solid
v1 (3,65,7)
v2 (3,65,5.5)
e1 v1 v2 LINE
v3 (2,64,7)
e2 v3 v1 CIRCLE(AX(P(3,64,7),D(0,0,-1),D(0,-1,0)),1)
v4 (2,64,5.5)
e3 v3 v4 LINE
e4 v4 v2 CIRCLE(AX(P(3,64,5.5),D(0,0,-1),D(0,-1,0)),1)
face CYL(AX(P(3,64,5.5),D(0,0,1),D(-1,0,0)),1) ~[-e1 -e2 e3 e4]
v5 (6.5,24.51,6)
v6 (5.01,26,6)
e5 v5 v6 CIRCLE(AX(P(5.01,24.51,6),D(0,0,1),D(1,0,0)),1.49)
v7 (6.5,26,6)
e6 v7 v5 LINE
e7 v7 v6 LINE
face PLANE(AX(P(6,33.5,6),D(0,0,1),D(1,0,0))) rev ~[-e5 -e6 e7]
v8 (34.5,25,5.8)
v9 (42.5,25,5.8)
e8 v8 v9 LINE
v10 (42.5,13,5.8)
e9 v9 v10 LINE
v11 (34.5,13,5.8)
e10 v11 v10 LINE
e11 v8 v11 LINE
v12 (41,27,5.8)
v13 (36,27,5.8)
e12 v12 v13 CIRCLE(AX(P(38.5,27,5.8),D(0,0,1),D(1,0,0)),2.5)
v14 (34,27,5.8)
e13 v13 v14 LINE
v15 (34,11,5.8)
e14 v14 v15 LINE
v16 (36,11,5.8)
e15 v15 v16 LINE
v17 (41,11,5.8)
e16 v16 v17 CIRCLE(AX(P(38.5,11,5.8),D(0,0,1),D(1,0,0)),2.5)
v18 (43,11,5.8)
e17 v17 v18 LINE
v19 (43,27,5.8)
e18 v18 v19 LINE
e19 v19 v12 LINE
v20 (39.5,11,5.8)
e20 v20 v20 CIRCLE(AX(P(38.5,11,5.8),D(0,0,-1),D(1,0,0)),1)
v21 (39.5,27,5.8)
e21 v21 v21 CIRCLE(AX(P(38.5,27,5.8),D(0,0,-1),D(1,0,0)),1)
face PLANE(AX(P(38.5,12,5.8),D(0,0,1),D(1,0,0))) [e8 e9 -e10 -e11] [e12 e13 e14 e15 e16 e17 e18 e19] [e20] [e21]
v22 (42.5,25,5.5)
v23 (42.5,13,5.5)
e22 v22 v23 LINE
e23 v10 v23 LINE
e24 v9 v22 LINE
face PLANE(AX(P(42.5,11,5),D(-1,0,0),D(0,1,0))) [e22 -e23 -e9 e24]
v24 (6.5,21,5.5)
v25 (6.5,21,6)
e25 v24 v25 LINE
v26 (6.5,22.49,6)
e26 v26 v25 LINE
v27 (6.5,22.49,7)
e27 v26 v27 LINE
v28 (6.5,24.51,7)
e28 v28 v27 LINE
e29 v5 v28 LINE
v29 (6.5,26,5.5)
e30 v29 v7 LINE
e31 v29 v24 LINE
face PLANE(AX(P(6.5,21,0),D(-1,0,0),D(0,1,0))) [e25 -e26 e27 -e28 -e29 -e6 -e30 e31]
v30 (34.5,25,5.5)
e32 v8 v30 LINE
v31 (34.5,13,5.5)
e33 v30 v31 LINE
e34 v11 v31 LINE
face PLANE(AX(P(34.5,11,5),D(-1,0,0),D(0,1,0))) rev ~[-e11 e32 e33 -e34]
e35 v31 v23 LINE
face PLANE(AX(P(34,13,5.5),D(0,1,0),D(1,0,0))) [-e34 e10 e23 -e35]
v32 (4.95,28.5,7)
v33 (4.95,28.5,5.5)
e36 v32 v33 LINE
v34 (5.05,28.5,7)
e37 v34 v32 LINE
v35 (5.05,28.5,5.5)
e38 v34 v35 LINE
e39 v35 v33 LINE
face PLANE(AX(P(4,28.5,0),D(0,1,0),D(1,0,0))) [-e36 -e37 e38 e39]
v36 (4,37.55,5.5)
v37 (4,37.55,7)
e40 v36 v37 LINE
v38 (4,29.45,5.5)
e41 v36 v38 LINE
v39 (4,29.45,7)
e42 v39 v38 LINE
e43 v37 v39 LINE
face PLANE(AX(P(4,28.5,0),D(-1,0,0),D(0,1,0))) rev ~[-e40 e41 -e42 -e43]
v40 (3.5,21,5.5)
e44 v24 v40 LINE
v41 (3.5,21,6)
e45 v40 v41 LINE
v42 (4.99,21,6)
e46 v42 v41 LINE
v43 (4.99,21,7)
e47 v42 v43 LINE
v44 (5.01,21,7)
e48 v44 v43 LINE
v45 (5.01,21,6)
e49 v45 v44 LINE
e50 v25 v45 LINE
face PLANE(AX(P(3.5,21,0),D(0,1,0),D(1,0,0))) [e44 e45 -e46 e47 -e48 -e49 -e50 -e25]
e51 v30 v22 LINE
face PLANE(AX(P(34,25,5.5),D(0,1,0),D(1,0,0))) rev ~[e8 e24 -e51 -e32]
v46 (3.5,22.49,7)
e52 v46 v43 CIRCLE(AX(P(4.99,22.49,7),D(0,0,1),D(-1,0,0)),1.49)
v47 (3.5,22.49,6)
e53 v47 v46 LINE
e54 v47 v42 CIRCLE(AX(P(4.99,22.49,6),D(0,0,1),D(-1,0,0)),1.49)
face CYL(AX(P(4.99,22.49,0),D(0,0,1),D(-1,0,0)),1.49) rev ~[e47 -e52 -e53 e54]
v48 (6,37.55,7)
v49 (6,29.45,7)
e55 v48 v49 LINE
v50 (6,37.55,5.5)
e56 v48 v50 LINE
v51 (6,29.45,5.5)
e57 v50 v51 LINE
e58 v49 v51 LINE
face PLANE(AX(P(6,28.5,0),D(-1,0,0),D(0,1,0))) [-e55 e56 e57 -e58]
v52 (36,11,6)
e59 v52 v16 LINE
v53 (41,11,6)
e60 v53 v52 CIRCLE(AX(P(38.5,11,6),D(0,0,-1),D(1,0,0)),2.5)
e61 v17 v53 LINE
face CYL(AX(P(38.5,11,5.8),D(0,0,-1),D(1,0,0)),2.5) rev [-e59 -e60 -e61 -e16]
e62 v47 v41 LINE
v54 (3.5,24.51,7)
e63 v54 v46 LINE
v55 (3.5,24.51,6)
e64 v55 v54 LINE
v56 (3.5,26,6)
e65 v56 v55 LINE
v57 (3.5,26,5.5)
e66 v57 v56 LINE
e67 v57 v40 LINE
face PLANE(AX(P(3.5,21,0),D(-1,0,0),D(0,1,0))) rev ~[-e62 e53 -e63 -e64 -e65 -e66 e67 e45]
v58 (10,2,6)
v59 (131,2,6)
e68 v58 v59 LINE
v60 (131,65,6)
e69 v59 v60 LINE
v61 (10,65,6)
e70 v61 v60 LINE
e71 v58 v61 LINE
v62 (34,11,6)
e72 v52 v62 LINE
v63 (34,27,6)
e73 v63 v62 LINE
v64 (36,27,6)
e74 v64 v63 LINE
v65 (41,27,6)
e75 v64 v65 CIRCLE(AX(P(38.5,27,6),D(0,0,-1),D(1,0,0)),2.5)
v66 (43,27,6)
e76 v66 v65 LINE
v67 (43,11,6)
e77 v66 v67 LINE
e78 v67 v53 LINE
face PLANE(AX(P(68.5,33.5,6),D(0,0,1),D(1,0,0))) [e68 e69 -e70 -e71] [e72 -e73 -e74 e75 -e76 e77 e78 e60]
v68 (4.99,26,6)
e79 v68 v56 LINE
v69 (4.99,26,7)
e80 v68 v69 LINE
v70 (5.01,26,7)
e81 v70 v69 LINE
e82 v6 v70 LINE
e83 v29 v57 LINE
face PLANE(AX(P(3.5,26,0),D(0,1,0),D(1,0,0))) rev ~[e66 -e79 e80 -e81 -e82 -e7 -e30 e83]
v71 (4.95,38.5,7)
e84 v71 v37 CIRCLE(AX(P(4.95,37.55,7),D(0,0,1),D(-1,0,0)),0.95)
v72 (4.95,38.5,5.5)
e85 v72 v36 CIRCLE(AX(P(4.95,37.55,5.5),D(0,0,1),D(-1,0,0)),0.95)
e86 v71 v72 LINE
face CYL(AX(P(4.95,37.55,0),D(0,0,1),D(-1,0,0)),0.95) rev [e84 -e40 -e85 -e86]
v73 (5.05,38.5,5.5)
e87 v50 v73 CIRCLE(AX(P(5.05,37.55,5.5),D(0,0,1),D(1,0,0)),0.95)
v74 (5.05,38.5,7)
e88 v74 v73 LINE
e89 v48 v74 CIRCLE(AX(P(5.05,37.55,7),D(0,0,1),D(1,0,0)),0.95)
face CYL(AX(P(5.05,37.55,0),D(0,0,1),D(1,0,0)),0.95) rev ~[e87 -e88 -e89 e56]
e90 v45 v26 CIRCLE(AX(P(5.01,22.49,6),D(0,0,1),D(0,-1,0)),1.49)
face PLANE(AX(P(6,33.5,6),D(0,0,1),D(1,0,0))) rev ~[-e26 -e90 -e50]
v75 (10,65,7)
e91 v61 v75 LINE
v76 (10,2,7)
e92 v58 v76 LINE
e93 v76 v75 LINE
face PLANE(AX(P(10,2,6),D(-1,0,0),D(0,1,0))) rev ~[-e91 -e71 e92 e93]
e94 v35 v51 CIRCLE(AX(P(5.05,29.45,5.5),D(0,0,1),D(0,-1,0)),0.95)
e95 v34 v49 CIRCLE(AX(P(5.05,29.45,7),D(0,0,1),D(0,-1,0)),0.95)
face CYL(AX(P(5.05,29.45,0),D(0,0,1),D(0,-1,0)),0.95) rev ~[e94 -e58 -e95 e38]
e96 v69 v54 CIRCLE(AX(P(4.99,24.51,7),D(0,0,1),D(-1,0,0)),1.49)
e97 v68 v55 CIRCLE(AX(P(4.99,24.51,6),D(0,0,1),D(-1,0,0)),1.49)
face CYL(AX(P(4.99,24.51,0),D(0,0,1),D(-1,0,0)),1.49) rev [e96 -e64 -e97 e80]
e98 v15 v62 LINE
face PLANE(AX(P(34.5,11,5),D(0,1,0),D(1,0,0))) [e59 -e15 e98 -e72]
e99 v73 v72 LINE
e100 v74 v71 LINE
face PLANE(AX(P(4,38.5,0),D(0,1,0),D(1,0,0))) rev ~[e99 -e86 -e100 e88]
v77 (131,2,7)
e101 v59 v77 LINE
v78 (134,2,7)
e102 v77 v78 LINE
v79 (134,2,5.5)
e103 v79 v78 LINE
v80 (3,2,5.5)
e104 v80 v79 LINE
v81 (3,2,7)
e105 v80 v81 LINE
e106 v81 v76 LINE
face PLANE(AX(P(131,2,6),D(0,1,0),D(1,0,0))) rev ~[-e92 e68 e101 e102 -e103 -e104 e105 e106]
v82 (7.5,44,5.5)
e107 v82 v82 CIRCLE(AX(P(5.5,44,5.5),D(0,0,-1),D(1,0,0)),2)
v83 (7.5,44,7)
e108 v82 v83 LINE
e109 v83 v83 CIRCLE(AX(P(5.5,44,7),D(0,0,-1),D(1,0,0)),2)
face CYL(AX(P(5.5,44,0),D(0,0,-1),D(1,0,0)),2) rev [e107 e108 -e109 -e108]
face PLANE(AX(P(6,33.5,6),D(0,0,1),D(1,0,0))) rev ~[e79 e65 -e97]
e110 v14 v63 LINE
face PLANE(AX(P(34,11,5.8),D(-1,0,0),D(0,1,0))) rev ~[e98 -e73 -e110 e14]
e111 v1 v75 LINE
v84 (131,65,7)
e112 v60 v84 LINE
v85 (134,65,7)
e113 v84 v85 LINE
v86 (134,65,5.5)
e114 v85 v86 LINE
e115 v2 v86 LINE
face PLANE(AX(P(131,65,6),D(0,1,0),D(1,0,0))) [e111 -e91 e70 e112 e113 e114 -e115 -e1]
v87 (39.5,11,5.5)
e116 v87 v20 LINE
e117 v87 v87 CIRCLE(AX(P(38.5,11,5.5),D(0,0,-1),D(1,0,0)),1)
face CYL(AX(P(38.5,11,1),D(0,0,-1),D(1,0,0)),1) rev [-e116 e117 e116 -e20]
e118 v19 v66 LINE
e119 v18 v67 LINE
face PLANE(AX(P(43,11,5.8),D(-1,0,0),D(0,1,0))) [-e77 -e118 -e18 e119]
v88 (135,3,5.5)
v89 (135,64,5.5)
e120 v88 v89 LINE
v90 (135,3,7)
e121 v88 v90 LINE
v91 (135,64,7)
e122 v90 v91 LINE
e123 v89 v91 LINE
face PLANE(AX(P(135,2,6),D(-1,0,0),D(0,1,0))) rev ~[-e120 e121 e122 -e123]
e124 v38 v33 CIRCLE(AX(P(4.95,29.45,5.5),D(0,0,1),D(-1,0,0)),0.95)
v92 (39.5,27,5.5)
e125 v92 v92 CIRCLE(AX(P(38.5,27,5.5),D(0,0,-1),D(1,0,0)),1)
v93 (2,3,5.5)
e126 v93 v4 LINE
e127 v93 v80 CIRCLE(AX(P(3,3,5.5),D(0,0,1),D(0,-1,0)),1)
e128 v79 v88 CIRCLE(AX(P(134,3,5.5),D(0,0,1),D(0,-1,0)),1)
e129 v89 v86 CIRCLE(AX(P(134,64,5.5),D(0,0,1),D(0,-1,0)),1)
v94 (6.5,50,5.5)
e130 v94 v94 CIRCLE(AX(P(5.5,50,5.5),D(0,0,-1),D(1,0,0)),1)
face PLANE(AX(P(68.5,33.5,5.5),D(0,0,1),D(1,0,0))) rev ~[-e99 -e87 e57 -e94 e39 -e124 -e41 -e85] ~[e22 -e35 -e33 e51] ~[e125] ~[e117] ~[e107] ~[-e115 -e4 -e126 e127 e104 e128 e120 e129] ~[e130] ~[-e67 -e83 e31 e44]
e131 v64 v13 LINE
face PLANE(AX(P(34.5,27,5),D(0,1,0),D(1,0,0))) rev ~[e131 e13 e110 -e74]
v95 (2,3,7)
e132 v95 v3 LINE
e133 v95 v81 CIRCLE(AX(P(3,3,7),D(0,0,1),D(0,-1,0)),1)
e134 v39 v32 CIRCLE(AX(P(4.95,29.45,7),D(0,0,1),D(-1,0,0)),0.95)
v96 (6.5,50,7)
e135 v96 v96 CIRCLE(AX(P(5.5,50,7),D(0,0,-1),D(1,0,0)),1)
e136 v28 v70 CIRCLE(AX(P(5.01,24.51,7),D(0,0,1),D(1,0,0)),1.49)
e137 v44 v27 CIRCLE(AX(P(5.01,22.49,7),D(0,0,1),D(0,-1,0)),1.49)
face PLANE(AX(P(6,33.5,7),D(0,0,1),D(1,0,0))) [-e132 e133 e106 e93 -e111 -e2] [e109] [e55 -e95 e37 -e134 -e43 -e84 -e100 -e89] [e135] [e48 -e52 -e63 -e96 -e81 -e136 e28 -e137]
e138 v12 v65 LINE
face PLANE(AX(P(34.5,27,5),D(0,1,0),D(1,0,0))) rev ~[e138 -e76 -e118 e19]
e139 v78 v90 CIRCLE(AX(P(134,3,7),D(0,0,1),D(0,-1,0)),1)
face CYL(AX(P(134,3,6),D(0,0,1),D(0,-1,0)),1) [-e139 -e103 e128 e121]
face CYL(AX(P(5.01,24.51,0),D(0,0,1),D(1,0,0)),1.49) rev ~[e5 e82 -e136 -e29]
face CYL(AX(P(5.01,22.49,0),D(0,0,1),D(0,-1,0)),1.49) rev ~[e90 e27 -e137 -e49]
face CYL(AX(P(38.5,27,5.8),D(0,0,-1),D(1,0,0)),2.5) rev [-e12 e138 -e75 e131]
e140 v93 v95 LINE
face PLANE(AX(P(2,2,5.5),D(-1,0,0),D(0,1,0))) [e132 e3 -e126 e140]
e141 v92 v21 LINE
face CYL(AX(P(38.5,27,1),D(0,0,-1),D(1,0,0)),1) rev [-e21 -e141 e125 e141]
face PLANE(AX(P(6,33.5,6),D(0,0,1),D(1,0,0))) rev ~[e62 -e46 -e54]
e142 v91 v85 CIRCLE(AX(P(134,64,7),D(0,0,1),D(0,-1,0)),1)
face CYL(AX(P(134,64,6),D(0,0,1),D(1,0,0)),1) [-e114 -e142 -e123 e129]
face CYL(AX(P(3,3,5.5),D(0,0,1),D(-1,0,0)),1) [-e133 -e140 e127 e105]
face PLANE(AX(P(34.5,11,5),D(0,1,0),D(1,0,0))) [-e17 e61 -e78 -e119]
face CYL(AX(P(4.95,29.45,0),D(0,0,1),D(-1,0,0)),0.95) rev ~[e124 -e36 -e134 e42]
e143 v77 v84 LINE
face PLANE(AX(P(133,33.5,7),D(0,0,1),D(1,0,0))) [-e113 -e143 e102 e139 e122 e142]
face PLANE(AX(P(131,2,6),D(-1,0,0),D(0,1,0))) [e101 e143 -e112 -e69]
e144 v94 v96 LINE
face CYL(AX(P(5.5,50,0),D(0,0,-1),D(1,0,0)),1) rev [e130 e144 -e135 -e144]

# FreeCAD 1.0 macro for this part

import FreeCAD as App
import Part
import Sketcher
from FreeCAD import Vector
Q = App.Units.Quantity


def edges_at(feature, points):
    """Names of the edges that pass closest to the given points."""
    edges = feature.Shape.Edges
    near = lambda p: min(range(len(edges)), key=lambda i: edges[i].distToShape(Part.Vertex(*p))[0])
    return sorted({f"Edge{near(p) + 1}" for p in points})


def add_polygon(sketch, points):
    """Adds a closed chain of lines whose ends are joined by coincident constraints."""
    first, n = sketch.GeometryCount, len(points)
    for a, b in zip(points, points[1:] + points[:1]):
        sketch.addGeometry(Part.LineSegment(App.Vector(*a, 0), App.Vector(*b, 0)), False)
    for i in range(n):
        sketch.addConstraint(Sketcher.Constraint("Coincident", first + i, 2, first + (i + 1) % n, 1))

doc = App.newDocument("Part")
body = doc.addObject("PartDesign::Body", "Body")

# Sketch on XY plane
sketch1 = body.newObject("Sketcher::SketchObject", "Sketch")
sketch1.AttachmentSupport = (doc.getObject("XY_Plane"), [""])
sketch1.MapMode = "FlatFace"
add_polygon(sketch1, [(4, 38.5), (4, 28.5), (6, 28.5), (6, 38.5)])  # lines 0-3
sketch1.addConstraint([
    Sketcher.Constraint("Vertical", 0),
    Sketcher.Constraint("Horizontal", 1),
    Sketcher.Constraint("Vertical", 2),
    Sketcher.Constraint("Horizontal", 3),
    Sketcher.Constraint("DistanceX", 1, 1, 1, 2, Q("2 mm")),
    Sketcher.Constraint("DistanceY", 0, 2, 0, 1, Q("10 mm")),
    Sketcher.Constraint("DistanceX", -1, 1, 0, 2, Q("4 mm")),
    Sketcher.Constraint("DistanceY", -1, 1, 0, 2, Q("28.5 mm")),
])
pad1 = body.newObject("PartDesign::Pad", "Pad")
pad1.Profile = sketch1
pad1.Length = 10
doc.recompute()

fillet = body.newObject("PartDesign::Fillet", "Fillet")
fillet.Base = (pad1, edges_at(pad1, [
    (4, 28.5, 5),
    (4, 38.5, 5),
    (6, 28.5, 5),
    (6, 38.5, 5),
]))
fillet.Radius = 0.95
body2 = doc.addObject("PartDesign::Body", "Body001")

# Sketch on XY plane
sketch2 = body2.newObject("Sketcher::SketchObject", "Sketch001")
sketch2.AttachmentSupport = (doc.getObject("XY_Plane001"), [""])
sketch2.MapMode = "FlatFace"
add_polygon(sketch2, [(3.5, 26), (3.5, 21), (6.5, 21), (6.5, 26)])  # lines 0-3
sketch2.addConstraint([
    Sketcher.Constraint("Vertical", 0),
    Sketcher.Constraint("Horizontal", 1),
    Sketcher.Constraint("Vertical", 2),
    Sketcher.Constraint("Horizontal", 3),
    Sketcher.Constraint("DistanceX", 1, 1, 1, 2, Q("3 mm")),
    Sketcher.Constraint("DistanceY", 0, 2, 0, 1, Q("5 mm")),
    Sketcher.Constraint("DistanceY", -1, 1, 0, 2, Q("21 mm")),
    Sketcher.Constraint("DistanceX", -1, 1, 0, 2, Q("3.5 mm")),
])
pad2 = body2.newObject("PartDesign::Pad", "Pad001")
pad2.Profile = sketch2
pad2.Length = 10
body3 = doc.addObject("PartDesign::Body", "Body002")

# Sketch on XY plane
sketch3 = body3.newObject("Sketcher::SketchObject", "Sketch002")
sketch3.AttachmentSupport = (doc.getObject("XY_Plane002"), [""])
sketch3.MapMode = "FlatFace"
sketch3.addGeometry(Part.Circle(Vector(5.5, 44, 0), Vector(0, 0, 1), 2), False)
sketch3.addConstraint([
    Sketcher.Constraint("Diameter", 0, Q("4 mm")),
    Sketcher.Constraint("DistanceY", -1, 1, 0, 3, Q("44 mm")),
    Sketcher.Constraint("DistanceX", -1, 1, 0, 3, Q("5.5 mm")),
])
pad3 = body3.newObject("PartDesign::Pad", "Pad002")
pad3.Profile = sketch3
pad3.Length = 10
body4 = doc.addObject("PartDesign::Body", "Body003")

# Sketch on XY plane
sketch4 = body4.newObject("Sketcher::SketchObject", "Sketch003")
sketch4.AttachmentSupport = (doc.getObject("XY_Plane003"), [""])
sketch4.MapMode = "FlatFace"
sketch4.addGeometry(Part.Circle(Vector(5.5, 50, 0), Vector(0, 0, 1), 1), False)
sketch4.addConstraint([
    Sketcher.Constraint("Diameter", 0, Q("2 mm")),
    Sketcher.Constraint("DistanceY", -1, 1, 0, 3, Q("50 mm")),
    Sketcher.Constraint("DistanceX", -1, 1, 0, 3, Q("5.5 mm")),
])
pad4 = body4.newObject("PartDesign::Pad", "Pad003")
pad4.Profile = sketch4
pad4.Length = 10
body5 = doc.addObject("PartDesign::Body", "Body004")

# Sketch on XY plane
sketch5 = body5.newObject("Sketcher::SketchObject", "Sketch004")
sketch5.AttachmentSupport = (doc.getObject("XY_Plane004"), [""])
sketch5.MapMode = "FlatFace"
sketch5.AttachmentOffset = App.Placement(Vector(0, 0, 1), App.Rotation())
sketch5.addGeometry(Part.Circle(Vector(38.5, 11, 0), Vector(0, 0, 1), 1), False)
sketch5.addConstraint([
    Sketcher.Constraint("Diameter", 0, Q("2 mm")),
    Sketcher.Constraint("DistanceY", -1, 1, 0, 3, Q("11 mm")),
    Sketcher.Constraint("DistanceX", -1, 1, 0, 3, Q("38.5 mm")),
])
pad5 = body5.newObject("PartDesign::Pad", "Pad004")
pad5.Profile = sketch5
pad5.Length = 10
body6 = doc.addObject("PartDesign::Body", "Body005")

# Sketch on XY plane
sketch6 = body6.newObject("Sketcher::SketchObject", "Sketch005")
sketch6.AttachmentSupport = (doc.getObject("XY_Plane005"), [""])
sketch6.MapMode = "FlatFace"
sketch6.AttachmentOffset = App.Placement(Vector(0, 0, 1), App.Rotation())
sketch6.addGeometry(Part.Circle(Vector(38.5, 27, 0), Vector(0, 0, 1), 1), False)
sketch6.addConstraint([
    Sketcher.Constraint("Diameter", 0, Q("2 mm")),
    Sketcher.Constraint("DistanceY", -1, 1, 0, 3, Q("27 mm")),
    Sketcher.Constraint("DistanceX", -1, 1, 0, 3, Q("38.5 mm")),
])
pad6 = body6.newObject("PartDesign::Pad", "Pad005")
pad6.Profile = sketch6
pad6.Length = 10
body7 = doc.addObject("PartDesign::Body", "Body006")

# Sketch on XY plane
sketch7 = body7.newObject("Sketcher::SketchObject", "Sketch006")
sketch7.AttachmentSupport = (doc.getObject("XY_Plane006"), [""])
sketch7.MapMode = "FlatFace"
sketch7.AttachmentOffset = App.Placement(Vector(0, 0, 1), App.Rotation())
sketch7.addGeometry(Part.Circle(Vector(38.5, 27, 0), Vector(0, 0, 1), 1.2), False)
sketch7.addConstraint([
    Sketcher.Constraint("Diameter", 0, Q("2.4 mm")),
    Sketcher.Constraint("DistanceY", -1, 1, 0, 3, Q("27 mm")),
    Sketcher.Constraint("DistanceX", -1, 1, 0, 3, Q("38.5 mm")),
])
pad7 = body7.newObject("PartDesign::Pad", "Pad006")
pad7.Profile = sketch7
pad7.Length = 0.1
body8 = doc.addObject("PartDesign::Body", "Body007")

# Sketch on XY plane
sketch8 = body8.newObject("Sketcher::SketchObject", "Sketch007")
sketch8.AttachmentSupport = (doc.getObject("XY_Plane007"), [""])
sketch8.MapMode = "FlatFace"
sketch8.AttachmentOffset = App.Placement(Vector(0, 0, 1), App.Rotation())
sketch8.addGeometry(Part.Circle(Vector(38.5, 11, 0), Vector(0, 0, 1), 1.2), False)
sketch8.addConstraint([
    Sketcher.Constraint("Diameter", 0, Q("2.4 mm")),
    Sketcher.Constraint("DistanceY", -1, 1, 0, 3, Q("11 mm")),
    Sketcher.Constraint("DistanceX", -1, 1, 0, 3, Q("38.5 mm")),
])
pad8 = body8.newObject("PartDesign::Pad", "Pad007")
pad8.Profile = sketch8
pad8.Length = 0.1
body9 = doc.addObject("PartDesign::Body", "Body008")

# Sketch on XY plane
sketch9 = body9.newObject("Sketcher::SketchObject", "Sketch008")
sketch9.AttachmentSupport = (doc.getObject("XY_Plane008"), [""])
sketch9.MapMode = "FlatFace"
sketch9.AttachmentOffset = App.Placement(Vector(0, 0, 5.5), App.Rotation())
add_polygon(sketch9, [(34, 13), (34, 11), (43, 11), (43, 13)])  # lines 0-3
sketch9.addConstraint([
    Sketcher.Constraint("Vertical", 0),
    Sketcher.Constraint("Horizontal", 1),
    Sketcher.Constraint("Vertical", 2),
    Sketcher.Constraint("Horizontal", 3),
    Sketcher.Constraint("DistanceX", 1, 1, 1, 2, Q("9 mm")),
    Sketcher.Constraint("DistanceY", 0, 2, 0, 1, Q("2 mm")),
    Sketcher.Constraint("DistanceX", -1, 1, 0, 2, Q("34 mm")),
    Sketcher.Constraint("DistanceY", -1, 1, 0, 2, Q("11 mm")),
])
pad9 = body9.newObject("PartDesign::Pad", "Pad008")
pad9.Profile = sketch9
pad9.Length = 0.3
body10 = doc.addObject("PartDesign::Body", "Body009")

# Sketch on XY plane
sketch10 = body10.newObject("Sketcher::SketchObject", "Sketch009")
sketch10.AttachmentSupport = (doc.getObject("XY_Plane009"), [""])
sketch10.MapMode = "FlatFace"
sketch10.AttachmentOffset = App.Placement(Vector(0, 0, 5.5), App.Rotation())
add_polygon(sketch10, [(34, 27), (34, 25), (43, 25), (43, 27)])  # lines 0-3
sketch10.addConstraint([
    Sketcher.Constraint("Vertical", 0),
    Sketcher.Constraint("Horizontal", 1),
    Sketcher.Constraint("Vertical", 2),
    Sketcher.Constraint("Horizontal", 3),
    Sketcher.Constraint("DistanceX", 1, 1, 1, 2, Q("9 mm")),
    Sketcher.Constraint("DistanceY", 0, 2, 0, 1, Q("2 mm")),
    Sketcher.Constraint("DistanceX", -1, 1, 0, 2, Q("34 mm")),
    Sketcher.Constraint("DistanceY", -1, 1, 0, 2, Q("25 mm")),
])
pad10 = body10.newObject("PartDesign::Pad", "Pad009")
pad10.Profile = sketch10
pad10.Length = 0.3
body11 = doc.addObject("PartDesign::Body", "Body010")

# Sketch on XY plane
sketch11 = body11.newObject("Sketcher::SketchObject", "Sketch010")
sketch11.AttachmentSupport = (doc.getObject("XY_Plane010"), [""])
sketch11.MapMode = "FlatFace"
sketch11.AttachmentOffset = App.Placement(Vector(0, 0, 1), App.Rotation())
sketch11.addGeometry(Part.Circle(Vector(38.5, 11, 0), Vector(0, 0, 1), 1.5), False)
sketch11.addConstraint([
    Sketcher.Constraint("Diameter", 0, Q("3 mm")),
    Sketcher.Constraint("DistanceY", -1, 1, 0, 3, Q("11 mm")),
    Sketcher.Constraint("DistanceX", -1, 1, 0, 3, Q("38.5 mm")),
])
pad11 = body11.newObject("PartDesign::Pad", "Pad010")
pad11.Profile = sketch11
pad11.Length = 10
body12 = doc.addObject("PartDesign::Body", "Body011")

# Sketch on XY plane
sketch12 = body12.newObject("Sketcher::SketchObject", "Sketch011")
sketch12.AttachmentSupport = (doc.getObject("XY_Plane011"), [""])
sketch12.MapMode = "FlatFace"
sketch12.AttachmentOffset = App.Placement(Vector(0, 0, 1), App.Rotation())
sketch12.addGeometry(Part.Circle(Vector(38.5, 27, 0), Vector(0, 0, 1), 1.5), False)
sketch12.addConstraint([
    Sketcher.Constraint("Diameter", 0, Q("3 mm")),
    Sketcher.Constraint("DistanceY", -1, 1, 0, 3, Q("27 mm")),
    Sketcher.Constraint("DistanceX", -1, 1, 0, 3, Q("38.5 mm")),
])
pad12 = body12.newObject("PartDesign::Pad", "Pad011")
pad12.Profile = sketch12
pad12.Length = 10
body13 = doc.addObject("PartDesign::Body", "Body012")

# Sketch on XY plane
sketch13 = body13.newObject("Sketcher::SketchObject", "Sketch012")
sketch13.AttachmentSupport = (doc.getObject("XY_Plane012"), [""])
sketch13.MapMode = "FlatFace"
sketch13.AttachmentOffset = App.Placement(Vector(0, 0, 5), App.Rotation())
add_polygon(sketch13, [(34, 27), (34, 11), (42, 11), (42, 27)])  # lines 0-3
sketch13.addConstraint([
    Sketcher.Constraint("Vertical", 0),
    Sketcher.Constraint("Horizontal", 1),
    Sketcher.Constraint("Vertical", 2),
    Sketcher.Constraint("Horizontal", 3),
    Sketcher.Constraint("DistanceX", 1, 1, 1, 2, Q("8 mm")),
    Sketcher.Constraint("DistanceY", 0, 2, 0, 1, Q("16 mm")),
    Sketcher.Constraint("DistanceY", -1, 1, 0, 2, Q("11 mm")),
    Sketcher.Constraint("DistanceX", -1, 1, 0, 2, Q("34.5 mm")),
])
pad13 = body13.newObject("PartDesign::Pad", "Pad012")
pad13.Profile = sketch13
pad13.Length = 1.2
doc.recompute()

body14 = doc.addObject("PartDesign::Body", "Body013")
body14.BaseFeature = body6
boolean = body13.newObject("PartDesign::Boolean", "Boolean")
boolean.Type = "Cut"
boolean.addObjects([body14])
doc.recompute()

body15 = doc.addObject("PartDesign::Body", "Body014")
body15.BaseFeature = body5
boolean2 = body13.newObject("PartDesign::Boolean", "Boolean001")
boolean2.Type = "Cut"
boolean2.addObjects([body15])
doc.recompute()

boolean3 = body13.newObject("PartDesign::Boolean", "Boolean002")
boolean3.Type = "Cut"
boolean3.addObjects([body12])
doc.recompute()

boolean4 = body13.newObject("PartDesign::Boolean", "Boolean003")
boolean4.Type = "Cut"
boolean4.addObjects([body11])
body16 = doc.addObject("PartDesign::Body", "Body015")

# Sketch on XY plane
sketch14 = body16.newObject("Sketcher::SketchObject", "Sketch013")
sketch14.AttachmentSupport = (doc.getObject("XY_Plane015"), [""])
sketch14.MapMode = "FlatFace"
sketch14.AttachmentOffset = App.Placement(Vector(0, 0, 1), App.Rotation())
sketch14.addGeometry(Part.Circle(Vector(38.5, 27, 0), Vector(0, 0, 1), 2.5), False)
sketch14.addConstraint([
    Sketcher.Constraint("Diameter", 0, Q("5 mm")),
    Sketcher.Constraint("DistanceY", -1, 1, 0, 3, Q("27 mm")),
    Sketcher.Constraint("DistanceX", -1, 1, 0, 3, Q("38.5 mm")),
])
pad14 = body16.newObject("PartDesign::Pad", "Pad013")
pad14.Profile = sketch14
pad14.Length = 0.3
body17 = doc.addObject("PartDesign::Body", "Body016")

# Sketch on XY plane
sketch15 = body17.newObject("Sketcher::SketchObject", "Sketch014")
sketch15.AttachmentSupport = (doc.getObject("XY_Plane016"), [""])
sketch15.MapMode = "FlatFace"
sketch15.AttachmentOffset = App.Placement(Vector(0, 0, 1), App.Rotation())
sketch15.addGeometry(Part.Circle(Vector(38.5, 11, 0), Vector(0, 0, 1), 2.5), False)
sketch15.addConstraint([
    Sketcher.Constraint("Diameter", 0, Q("5 mm")),
    Sketcher.Constraint("DistanceY", -1, 1, 0, 3, Q("11 mm")),
    Sketcher.Constraint("DistanceX", -1, 1, 0, 3, Q("38.5 mm")),
])
pad15 = body17.newObject("PartDesign::Pad", "Pad014")
pad15.Profile = sketch15
pad15.Length = 0.3
body18 = doc.addObject("PartDesign::Body", "Body017")

# Sketch on XY plane
sketch16 = body18.newObject("Sketcher::SketchObject", "Sketch015")
sketch16.AttachmentSupport = (doc.getObject("XY_Plane017"), [""])
sketch16.MapMode = "FlatFace"
sketch16.AttachmentOffset = App.Placement(Vector(0, 0, 1), App.Rotation())
add_polygon(sketch16, [(34, 27), (34, 11), (43, 11), (43, 27)])  # lines 0-3
sketch16.addConstraint([
    Sketcher.Constraint("Vertical", 0),
    Sketcher.Constraint("Horizontal", 1),
    Sketcher.Constraint("Vertical", 2),
    Sketcher.Constraint("Horizontal", 3),
    Sketcher.Constraint("DistanceX", 1, 1, 1, 2, Q("9 mm")),
    Sketcher.Constraint("DistanceY", 0, 2, 0, 1, Q("16 mm")),
    Sketcher.Constraint("DistanceX", -1, 1, 0, 2, Q("34 mm")),
    Sketcher.Constraint("DistanceY", -1, 1, 0, 2, Q("11 mm")),
])
pad16 = body18.newObject("PartDesign::Pad", "Pad015")
pad16.Profile = sketch16
pad16.Length = 0.3
doc.recompute()

boolean5 = body18.newObject("PartDesign::Boolean", "Boolean004")
boolean5.Type = "Fuse"
boolean5.addObjects([body16])
doc.recompute()

boolean6 = body18.newObject("PartDesign::Boolean", "Boolean005")
boolean6.Type = "Fuse"
boolean6.addObjects([body17])
body19 = doc.addObject("PartDesign::Body", "Body018")
doc.recompute()

body18.Placement = App.Placement(Vector(0, 0, 4.4), App.Rotation(Vector(0, 0, 1), 0))
boolean7 = body19.newObject("PartDesign::Boolean", "Boolean006")
boolean7.Type = "Fuse"
boolean7.addObjects([body18])
doc.recompute()

body20 = doc.addObject("PartDesign::Body", "Body019")
body20.BaseFeature = body5
boolean8 = body19.newObject("PartDesign::Boolean", "Boolean007")
boolean8.Type = "Cut"
boolean8.addObjects([body20])
doc.recompute()

body21 = doc.addObject("PartDesign::Body", "Body020")
body21.BaseFeature = body6
boolean9 = body19.newObject("PartDesign::Boolean", "Boolean008")
boolean9.Type = "Cut"
boolean9.addObjects([body21])
doc.recompute()
body22 = doc.addObject("PartDesign::Body", "Body021")
doc.recompute()

body19.Placement = App.Placement(Vector(0, 0, 0.4), App.Rotation(Vector(0, 0, 1), 0))
boolean10 = body22.newObject("PartDesign::Boolean", "Boolean009")
boolean10.Type = "Fuse"
boolean10.addObjects([body19])
doc.recompute()

boolean11 = body22.newObject("PartDesign::Boolean", "Boolean010")
boolean11.Type = "Fuse"
boolean11.addObjects([body13])
body23 = doc.addObject("PartDesign::Body", "Body022")

# Sketch on XY plane
sketch17 = body23.newObject("Sketcher::SketchObject", "Sketch016")
sketch17.AttachmentSupport = (doc.getObject("XY_Plane022"), [""])
sketch17.MapMode = "FlatFace"
sketch17.AttachmentOffset = App.Placement(Vector(0, 0, 5.5), App.Rotation())
add_polygon(sketch17, [(2, 65), (2, 2), (135, 2), (135, 65)])  # lines 0-3
sketch17.addConstraint([
    Sketcher.Constraint("Vertical", 0),
    Sketcher.Constraint("Horizontal", 1),
    Sketcher.Constraint("Vertical", 2),
    Sketcher.Constraint("Horizontal", 3),
    Sketcher.Constraint("DistanceX", 1, 1, 1, 2, Q("133 mm")),
    Sketcher.Constraint("DistanceY", 0, 2, 0, 1, Q("63 mm")),
    Sketcher.Constraint("DistanceX", -1, 1, 0, 2, Q("2 mm")),
    Sketcher.Constraint("DistanceY", -1, 1, 0, 2, Q("2 mm")),
])
pad17 = body23.newObject("PartDesign::Pad", "Pad016")
pad17.Profile = sketch17
pad17.Length = 0.5
doc.recompute()

fillet2 = body23.newObject("PartDesign::Fillet", "Fillet001")
fillet2.Base = (pad17, edges_at(pad17, [
    (2, 2, 5.75),
    (2, 65, 5.75),
    (135, 2, 5.75),
    (135, 65, 5.75),
]))
fillet2.Radius = 1
doc.recompute()

boolean12 = body23.newObject("PartDesign::Boolean", "Boolean011")
boolean12.Type = "Cut"
boolean12.addObjects([body22])
doc.recompute()

boolean13 = body23.newObject("PartDesign::Boolean", "Boolean012")
boolean13.Type = "Fuse"
boolean13.addObjects([body9])
doc.recompute()

boolean14 = body23.newObject("PartDesign::Boolean", "Boolean013")
boolean14.Type = "Fuse"
boolean14.addObjects([body10])
doc.recompute()

boolean15 = body23.newObject("PartDesign::Boolean", "Boolean014")
boolean15.Type = "Cut"
boolean15.addObjects([body8])
doc.recompute()

boolean16 = body23.newObject("PartDesign::Boolean", "Boolean015")
boolean16.Type = "Cut"
boolean16.addObjects([body7])
doc.recompute()

boolean17 = body23.newObject("PartDesign::Boolean", "Boolean016")
boolean17.Type = "Cut"
boolean17.addObjects([body6])
doc.recompute()

boolean18 = body23.newObject("PartDesign::Boolean", "Boolean017")
boolean18.Type = "Cut"
boolean18.addObjects([body5])
doc.recompute()

body24 = doc.addObject("PartDesign::Body", "Body023")
body24.BaseFeature = body4
boolean19 = body23.newObject("PartDesign::Boolean", "Boolean018")
boolean19.Type = "Cut"
boolean19.addObjects([body24])
doc.recompute()

body25 = doc.addObject("PartDesign::Body", "Body024")
body25.BaseFeature = body3
boolean20 = body23.newObject("PartDesign::Boolean", "Boolean019")
boolean20.Type = "Cut"
boolean20.addObjects([body25])
doc.recompute()

boolean21 = body23.newObject("PartDesign::Boolean", "Boolean020")
boolean21.Type = "Cut"
boolean21.addObjects([body2])
doc.recompute()

body26 = doc.addObject("PartDesign::Body", "Body025")
body26.BaseFeature = body
boolean22 = body23.newObject("PartDesign::Boolean", "Boolean021")
boolean22.Type = "Cut"
boolean22.addObjects([body26])
doc.recompute()
body27 = doc.addObject("PartDesign::Body", "Body026")

# Sketch on XY plane
sketch18 = body27.newObject("Sketcher::SketchObject", "Sketch017")
sketch18.AttachmentSupport = (doc.getObject("XY_Plane026"), [""])
sketch18.MapMode = "FlatFace"
sketch18.AttachmentOffset = App.Placement(Vector(0, 0, 6), App.Rotation())
add_polygon(sketch18, [(131, 65), (131, 2), (135, 2), (135, 65)])  # lines 0-3
sketch18.addConstraint([
    Sketcher.Constraint("Vertical", 0),
    Sketcher.Constraint("Horizontal", 1),
    Sketcher.Constraint("Vertical", 2),
    Sketcher.Constraint("Horizontal", 3),
    Sketcher.Constraint("DistanceX", 1, 1, 1, 2, Q("4 mm")),
    Sketcher.Constraint("DistanceY", 0, 2, 0, 1, Q("63 mm")),
    Sketcher.Constraint("DistanceX", -1, 1, 0, 2, Q("131 mm")),
    Sketcher.Constraint("DistanceY", -1, 1, 0, 2, Q("2 mm")),
])
pad18 = body27.newObject("PartDesign::Pad", "Pad017")
pad18.Profile = sketch18
pad18.Length = 1
doc.recompute()

fillet3 = body27.newObject("PartDesign::Fillet", "Fillet002")
fillet3.Base = (pad18, edges_at(pad18, [(135, 2, 6.5), (135, 65, 6.5)]))
fillet3.Radius = 1
body28 = doc.addObject("PartDesign::Body", "Body027")

# Sketch on XY plane
sketch19 = body28.newObject("Sketcher::SketchObject", "Sketch018")
sketch19.AttachmentSupport = (doc.getObject("XY_Plane027"), [""])
sketch19.MapMode = "FlatFace"
add_polygon(sketch19, [(3.5, 26), (3.5, 21), (6.5, 21), (6.5, 26)])  # lines 0-3
sketch19.addConstraint([
    Sketcher.Constraint("Vertical", 0),
    Sketcher.Constraint("Horizontal", 1),
    Sketcher.Constraint("Vertical", 2),
    Sketcher.Constraint("Horizontal", 3),
    Sketcher.Constraint("DistanceX", 1, 1, 1, 2, Q("3 mm")),
    Sketcher.Constraint("DistanceY", 0, 2, 0, 1, Q("5 mm")),
    Sketcher.Constraint("DistanceY", -1, 1, 0, 2, Q("21 mm")),
    Sketcher.Constraint("DistanceX", -1, 1, 0, 2, Q("3.5 mm")),
])
pad19 = body28.newObject("PartDesign::Pad", "Pad018")
pad19.Profile = sketch19
pad19.Length = 10
doc.recompute()

fillet4 = body28.newObject("PartDesign::Fillet", "Fillet003")
fillet4.Base = (pad19, edges_at(pad19, [
    (3.5, 21, 5),
    (3.5, 26, 5),
    (6.5, 21, 5),
    (6.5, 26, 5),
]))
fillet4.Radius = 1.49
body29 = doc.addObject("PartDesign::Body", "Body028")

# Sketch on XY plane
sketch20 = body29.newObject("Sketcher::SketchObject", "Sketch019")
sketch20.AttachmentSupport = (doc.getObject("XY_Plane028"), [""])
sketch20.MapMode = "FlatFace"
sketch20.AttachmentOffset = App.Placement(Vector(0, 0, 6), App.Rotation())
add_polygon(sketch20, [(2, 65), (2, 2), (10, 2), (10, 65)])  # lines 0-3
sketch20.addConstraint([
    Sketcher.Constraint("Vertical", 0),
    Sketcher.Constraint("Horizontal", 1),
    Sketcher.Constraint("Vertical", 2),
    Sketcher.Constraint("Horizontal", 3),
    Sketcher.Constraint("DistanceX", 1, 1, 1, 2, Q("8 mm")),
    Sketcher.Constraint("DistanceY", 0, 2, 0, 1, Q("63 mm")),
    Sketcher.Constraint("DistanceX", -1, 1, 0, 2, Q("2 mm")),
    Sketcher.Constraint("DistanceY", -1, 1, 0, 2, Q("2 mm")),
])
pad20 = body29.newObject("PartDesign::Pad", "Pad019")
pad20.Profile = sketch20
pad20.Length = 1
doc.recompute()

fillet5 = body29.newObject("PartDesign::Fillet", "Fillet004")
fillet5.Base = (pad20, edges_at(pad20, [(2, 2, 6.5), (2, 65, 6.5)]))
fillet5.Radius = 1
doc.recompute()

boolean23 = body29.newObject("PartDesign::Boolean", "Boolean022")
boolean23.Type = "Cut"
boolean23.addObjects([body])
doc.recompute()

boolean24 = body29.newObject("PartDesign::Boolean", "Boolean023")
boolean24.Type = "Cut"
boolean24.addObjects([body4])
doc.recompute()

boolean25 = body29.newObject("PartDesign::Boolean", "Boolean024")
boolean25.Type = "Cut"
boolean25.addObjects([body28])
doc.recompute()

boolean26 = body29.newObject("PartDesign::Boolean", "Boolean025")
boolean26.Type = "Cut"
boolean26.addObjects([body3])
doc.recompute()

boolean27 = body29.newObject("PartDesign::Boolean", "Boolean026")
boolean27.Type = "Fuse"
boolean27.addObjects([body23])
doc.recompute()

boolean28 = body29.newObject("PartDesign::Boolean", "Boolean027")
boolean28.Type = "Fuse"
boolean28.addObjects([body27])

doc.recompute()
